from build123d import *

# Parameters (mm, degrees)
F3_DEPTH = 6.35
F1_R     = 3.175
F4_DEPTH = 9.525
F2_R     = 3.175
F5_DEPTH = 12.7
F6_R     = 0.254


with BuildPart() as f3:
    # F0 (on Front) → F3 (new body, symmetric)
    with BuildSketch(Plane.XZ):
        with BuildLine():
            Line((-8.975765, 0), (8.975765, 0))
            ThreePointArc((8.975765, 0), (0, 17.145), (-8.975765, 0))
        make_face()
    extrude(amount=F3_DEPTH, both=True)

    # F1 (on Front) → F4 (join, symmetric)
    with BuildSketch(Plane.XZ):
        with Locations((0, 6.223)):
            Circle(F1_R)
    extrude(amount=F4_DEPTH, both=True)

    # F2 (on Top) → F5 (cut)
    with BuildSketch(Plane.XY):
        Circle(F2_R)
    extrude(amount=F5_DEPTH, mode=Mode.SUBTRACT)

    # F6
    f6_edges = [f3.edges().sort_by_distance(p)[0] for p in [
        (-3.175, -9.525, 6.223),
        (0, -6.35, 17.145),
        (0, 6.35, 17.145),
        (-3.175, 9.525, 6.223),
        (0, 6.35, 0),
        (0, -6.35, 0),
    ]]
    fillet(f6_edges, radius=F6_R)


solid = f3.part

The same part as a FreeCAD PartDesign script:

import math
import FreeCAD as App
import Part
import Sketcher

V = App.Vector
Q = App.Units.Quantity


def edges_at(feature, points):
    """Names of the edges that pass closest to the given points."""
    edges = feature.Shape.Edges
    near = lambda p: min(range(len(edges)), key=lambda i: edges[i].distToShape(Part.Vertex(*p))[0])
    return sorted({f"Edge{near(p) + 1}" for p in points})

doc = App.newDocument("Part")
body = doc.addObject("PartDesign::Body", "Body")

# Sketch on XZ plane
sketch1 = body.newObject("Sketcher::SketchObject", "Sketch")
sketch1.AttachmentSupport = (doc.getObject("XZ_Plane"), [""])
sketch1.MapMode = "FlatFace"
sketch1.addGeometry([
    Part.LineSegment(V(-8.975765, 0, 0), V(8.975765, 0, 0)),
    Part.ArcOfCircle(Part.Circle(V(0, 6.223, 0), V(0, 0, 1), 10.922), math.radians(-34.73401), math.radians(214.73401)),
], False)
sketch1.addConstraint([
    Sketcher.Constraint("Coincident", 0, 1, 1, 2),
    Sketcher.Constraint("Coincident", 1, 1, 0, 2),
    Sketcher.Constraint("Horizontal", 0),
    Sketcher.Constraint("Symmetric", 0, 1, 1, 1, -1, 1),
    Sketcher.Constraint("Radius", 1, Q("0.43 in")),
    Sketcher.Constraint("DistanceY", -1, 1, 1, 3, Q("0.245 in")),
])
pad1 = body.newObject("PartDesign::Pad", "Pad")
pad1.Profile = sketch1
pad1.Length = Q("0.5 in")
pad1.Midplane = True

# Sketch on XZ plane
sketch2 = body.newObject("Sketcher::SketchObject", "Sketch001")
sketch2.AttachmentSupport = (doc.getObject("XZ_Plane"), [""])
sketch2.MapMode = "FlatFace"
sketch2.addGeometry(Part.Circle(V(0, 6.223, 0), V(0, 0, 1), 3.175), False)
sketch2.addConstraint([
    Sketcher.Constraint("PointOnObject", 0, 3, -2),
    Sketcher.Constraint("Diameter", 0, Q("0.25 in")),
    Sketcher.Constraint("DistanceY", -1, 1, 0, 3, Q("0.245 in")),
])
pad2 = body.newObject("PartDesign::Pad", "Pad001")
pad2.Profile = sketch2
pad2.Length = Q("0.75 in")
pad2.Midplane = True

# Sketch on XY plane
sketch3 = body.newObject("Sketcher::SketchObject", "Sketch002")
sketch3.AttachmentSupport = (doc.getObject("XY_Plane"), [""])
sketch3.MapMode = "FlatFace"
sketch3.addGeometry(Part.Circle(V(0, 0, 0), V(0, 0, 1), 3.175), False)
sketch3.addConstraint([
    Sketcher.Constraint("Coincident", 0, 3, -1, 1),
    Sketcher.Constraint("Diameter", 0, Q("0.25 in")),
])
pocket1 = body.newObject("PartDesign::Pocket", "Pocket")
pocket1.Profile = sketch3
pocket1.Length = Q("0.5 in")
pocket1.Reversed = True
doc.recompute()

fillet = body.newObject("PartDesign::Fillet", "Fillet")
fillet.Base = (pocket1, edges_at(pocket1, [
    (-3.175, -9.525, 6.223),
    (0, -6.35, 17.145),
    (0, 6.35, 17.145),
    (-3.175, 9.525, 6.223),
    (0, 6.35, 0),
    (0, -6.35, 0),
]))
fillet.Radius = Q("0.01 in")

doc.recompute()
